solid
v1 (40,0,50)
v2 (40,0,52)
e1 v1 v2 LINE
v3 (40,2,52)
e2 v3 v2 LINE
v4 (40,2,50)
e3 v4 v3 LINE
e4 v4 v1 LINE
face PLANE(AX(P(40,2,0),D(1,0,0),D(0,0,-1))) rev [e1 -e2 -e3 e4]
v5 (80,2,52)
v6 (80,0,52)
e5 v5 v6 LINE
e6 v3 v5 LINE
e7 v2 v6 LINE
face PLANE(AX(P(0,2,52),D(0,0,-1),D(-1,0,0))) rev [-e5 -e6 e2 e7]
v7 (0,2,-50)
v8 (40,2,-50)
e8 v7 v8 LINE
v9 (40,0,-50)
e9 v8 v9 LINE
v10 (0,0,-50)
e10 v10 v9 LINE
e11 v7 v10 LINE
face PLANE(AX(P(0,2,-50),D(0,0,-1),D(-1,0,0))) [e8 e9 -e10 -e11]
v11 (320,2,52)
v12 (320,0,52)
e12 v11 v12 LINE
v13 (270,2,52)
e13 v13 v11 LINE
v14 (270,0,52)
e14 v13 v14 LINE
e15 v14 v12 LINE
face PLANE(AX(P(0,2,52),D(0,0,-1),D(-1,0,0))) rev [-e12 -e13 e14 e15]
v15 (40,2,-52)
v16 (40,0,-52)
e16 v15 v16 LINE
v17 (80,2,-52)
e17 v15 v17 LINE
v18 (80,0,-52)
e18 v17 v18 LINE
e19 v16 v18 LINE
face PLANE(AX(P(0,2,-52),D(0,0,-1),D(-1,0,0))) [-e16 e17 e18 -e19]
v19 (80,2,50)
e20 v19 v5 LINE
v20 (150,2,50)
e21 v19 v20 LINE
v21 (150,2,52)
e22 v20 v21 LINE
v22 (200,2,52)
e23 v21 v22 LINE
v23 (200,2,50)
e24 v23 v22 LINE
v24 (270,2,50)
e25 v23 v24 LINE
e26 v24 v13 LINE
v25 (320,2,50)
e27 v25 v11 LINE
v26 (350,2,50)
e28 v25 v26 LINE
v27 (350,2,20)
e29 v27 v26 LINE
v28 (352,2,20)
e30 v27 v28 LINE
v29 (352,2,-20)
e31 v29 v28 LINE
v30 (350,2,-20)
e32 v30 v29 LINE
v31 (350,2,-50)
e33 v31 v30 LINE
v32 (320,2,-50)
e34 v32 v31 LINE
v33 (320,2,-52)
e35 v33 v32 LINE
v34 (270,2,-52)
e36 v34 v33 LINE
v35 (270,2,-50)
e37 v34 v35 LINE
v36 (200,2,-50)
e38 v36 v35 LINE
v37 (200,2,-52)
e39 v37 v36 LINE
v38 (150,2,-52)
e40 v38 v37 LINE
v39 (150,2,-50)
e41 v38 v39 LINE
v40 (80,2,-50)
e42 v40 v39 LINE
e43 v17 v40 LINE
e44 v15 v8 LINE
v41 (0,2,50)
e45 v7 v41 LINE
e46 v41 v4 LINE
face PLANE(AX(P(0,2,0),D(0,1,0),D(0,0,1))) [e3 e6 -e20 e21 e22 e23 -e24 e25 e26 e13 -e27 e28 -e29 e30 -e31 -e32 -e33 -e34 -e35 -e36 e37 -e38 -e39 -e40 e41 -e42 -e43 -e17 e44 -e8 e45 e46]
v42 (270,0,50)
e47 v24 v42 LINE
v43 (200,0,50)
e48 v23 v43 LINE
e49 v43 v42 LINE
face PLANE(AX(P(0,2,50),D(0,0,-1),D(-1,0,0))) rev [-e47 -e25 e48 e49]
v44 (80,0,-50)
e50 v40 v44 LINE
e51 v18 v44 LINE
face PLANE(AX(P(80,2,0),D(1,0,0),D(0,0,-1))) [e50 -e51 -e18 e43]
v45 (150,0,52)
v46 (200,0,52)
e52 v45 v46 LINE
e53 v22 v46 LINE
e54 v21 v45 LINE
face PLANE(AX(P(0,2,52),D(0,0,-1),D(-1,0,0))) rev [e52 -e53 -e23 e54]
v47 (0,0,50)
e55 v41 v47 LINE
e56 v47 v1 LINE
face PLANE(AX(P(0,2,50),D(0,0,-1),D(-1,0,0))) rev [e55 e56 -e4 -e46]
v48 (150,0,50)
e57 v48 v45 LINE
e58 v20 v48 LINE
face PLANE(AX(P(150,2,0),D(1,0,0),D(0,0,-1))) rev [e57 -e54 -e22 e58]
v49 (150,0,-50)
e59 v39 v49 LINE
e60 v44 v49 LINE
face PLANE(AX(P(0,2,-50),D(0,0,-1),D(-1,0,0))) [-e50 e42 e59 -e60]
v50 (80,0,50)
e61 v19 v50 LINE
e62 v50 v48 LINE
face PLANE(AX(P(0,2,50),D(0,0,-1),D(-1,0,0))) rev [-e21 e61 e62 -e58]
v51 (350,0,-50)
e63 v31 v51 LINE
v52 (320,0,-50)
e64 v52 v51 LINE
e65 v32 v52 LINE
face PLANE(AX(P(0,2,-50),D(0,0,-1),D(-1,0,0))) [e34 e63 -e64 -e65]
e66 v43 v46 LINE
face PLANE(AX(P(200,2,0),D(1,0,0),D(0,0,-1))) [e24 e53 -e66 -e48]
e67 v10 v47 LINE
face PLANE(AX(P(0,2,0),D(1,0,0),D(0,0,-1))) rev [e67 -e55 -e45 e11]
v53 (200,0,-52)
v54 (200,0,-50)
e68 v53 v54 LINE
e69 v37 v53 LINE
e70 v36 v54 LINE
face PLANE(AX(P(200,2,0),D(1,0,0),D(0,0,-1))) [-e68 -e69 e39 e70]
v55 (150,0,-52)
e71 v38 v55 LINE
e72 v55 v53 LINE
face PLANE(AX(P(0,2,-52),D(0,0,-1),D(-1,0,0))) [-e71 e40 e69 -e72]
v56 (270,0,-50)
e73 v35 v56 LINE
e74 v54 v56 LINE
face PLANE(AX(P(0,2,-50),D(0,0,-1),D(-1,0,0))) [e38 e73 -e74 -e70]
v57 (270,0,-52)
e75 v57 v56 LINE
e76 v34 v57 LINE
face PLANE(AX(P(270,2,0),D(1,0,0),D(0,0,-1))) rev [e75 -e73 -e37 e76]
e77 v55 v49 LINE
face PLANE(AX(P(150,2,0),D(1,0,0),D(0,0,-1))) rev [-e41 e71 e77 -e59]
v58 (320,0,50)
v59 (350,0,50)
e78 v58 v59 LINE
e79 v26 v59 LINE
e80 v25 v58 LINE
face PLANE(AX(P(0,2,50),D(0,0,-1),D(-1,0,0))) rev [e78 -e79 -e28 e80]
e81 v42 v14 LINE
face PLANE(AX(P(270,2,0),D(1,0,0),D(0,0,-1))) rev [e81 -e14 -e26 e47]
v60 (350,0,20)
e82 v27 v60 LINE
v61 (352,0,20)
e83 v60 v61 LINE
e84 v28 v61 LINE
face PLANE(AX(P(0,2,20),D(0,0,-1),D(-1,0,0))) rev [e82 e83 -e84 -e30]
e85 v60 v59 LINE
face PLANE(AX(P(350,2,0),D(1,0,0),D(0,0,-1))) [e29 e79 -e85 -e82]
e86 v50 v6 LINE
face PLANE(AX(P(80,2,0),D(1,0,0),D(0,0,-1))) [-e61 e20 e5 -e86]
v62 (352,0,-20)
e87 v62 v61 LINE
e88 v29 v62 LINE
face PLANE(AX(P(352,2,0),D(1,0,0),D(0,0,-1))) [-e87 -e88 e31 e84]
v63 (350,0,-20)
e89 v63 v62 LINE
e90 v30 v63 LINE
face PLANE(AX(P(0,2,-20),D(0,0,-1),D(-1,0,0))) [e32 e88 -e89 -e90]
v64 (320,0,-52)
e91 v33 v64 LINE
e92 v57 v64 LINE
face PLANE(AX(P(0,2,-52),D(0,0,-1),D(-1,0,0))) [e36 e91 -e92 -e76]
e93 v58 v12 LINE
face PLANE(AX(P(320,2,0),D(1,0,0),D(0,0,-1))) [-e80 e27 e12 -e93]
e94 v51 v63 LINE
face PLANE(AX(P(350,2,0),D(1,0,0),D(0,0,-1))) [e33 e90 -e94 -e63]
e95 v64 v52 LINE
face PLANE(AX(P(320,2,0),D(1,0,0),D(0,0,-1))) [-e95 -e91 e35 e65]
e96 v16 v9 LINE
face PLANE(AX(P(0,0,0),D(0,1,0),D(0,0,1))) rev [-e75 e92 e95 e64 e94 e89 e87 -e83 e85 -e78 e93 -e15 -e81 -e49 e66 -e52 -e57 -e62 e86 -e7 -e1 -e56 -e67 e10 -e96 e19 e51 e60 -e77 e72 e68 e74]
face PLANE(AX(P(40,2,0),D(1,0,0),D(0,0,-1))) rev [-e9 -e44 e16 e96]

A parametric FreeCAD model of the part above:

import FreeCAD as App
import Part
import Sketcher

doc = App.newDocument("Part")
body = doc.addObject("PartDesign::Body", "Body")

sketch1 = doc.addObject("Sketcher::SketchObject", "Sketch")
body.addObject(sketch1)
sketch1.AttachmentSupport = (doc.XZ_Plane, [""])
sketch1.MapMode = "FlatFace"
sketch1.addGeometry([
    Part.LineSegment(App.Vector(40, -52, 0), App.Vector(40, -50, 0)),
    Part.LineSegment(App.Vector(40, -50, 0), App.Vector(0, -50, 0)),
    Part.LineSegment(App.Vector(0, -50, 0), App.Vector(0, 50, 0)),
    Part.LineSegment(App.Vector(0, 50, 0), App.Vector(40, 50, 0)),
    Part.LineSegment(App.Vector(40, 50, 0), App.Vector(40, 52, 0)),
    Part.LineSegment(App.Vector(40, 52, 0), App.Vector(80, 52, 0)),
    Part.LineSegment(App.Vector(80, 52, 0), App.Vector(80, 50, 0)),
    Part.LineSegment(App.Vector(80, 50, 0), App.Vector(150, 50, 0)),
    Part.LineSegment(App.Vector(150, 50, 0), App.Vector(150, 52, 0)),
    Part.LineSegment(App.Vector(150, 52, 0), App.Vector(200, 52, 0)),
    Part.LineSegment(App.Vector(200, 52, 0), App.Vector(200, 50, 0)),
    Part.LineSegment(App.Vector(200, 50, 0), App.Vector(270, 50, 0)),
    Part.LineSegment(App.Vector(270, 50, 0), App.Vector(270, 52, 0)),
    Part.LineSegment(App.Vector(270, 52, 0), App.Vector(320, 52, 0)),
    Part.LineSegment(App.Vector(320, 52, 0), App.Vector(320, 50, 0)),
    Part.LineSegment(App.Vector(320, 50, 0), App.Vector(350, 50, 0)),
    Part.LineSegment(App.Vector(350, 50, 0), App.Vector(350, -50, 0)),
    Part.LineSegment(App.Vector(350, -50, 0), App.Vector(320, -50, 0)),
    Part.LineSegment(App.Vector(320, -50, 0), App.Vector(320, -52, 0)),
    Part.LineSegment(App.Vector(320, -52, 0), App.Vector(270, -52, 0)),
    Part.LineSegment(App.Vector(270, -52, 0), App.Vector(270, -50, 0)),
    Part.LineSegment(App.Vector(270, -50, 0), App.Vector(200, -50, 0)),
    Part.LineSegment(App.Vector(200, -50, 0), App.Vector(200, -52, 0)),
    Part.LineSegment(App.Vector(200, -52, 0), App.Vector(150, -52, 0)),
    Part.LineSegment(App.Vector(150, -52, 0), App.Vector(150, -50, 0)),
    Part.LineSegment(App.Vector(150, -50, 0), App.Vector(80, -50, 0)),
    Part.LineSegment(App.Vector(80, -50, 0), App.Vector(80, -52, 0)),
    Part.LineSegment(App.Vector(80, -52, 0), App.Vector(40, -52, 0)),
], False)
sketch1.addConstraint([
    Sketcher.Constraint("Coincident", 0, 2, 1, 1),
    Sketcher.Constraint("Coincident", 1, 2, 2, 1),
    Sketcher.Constraint("Coincident", 2, 2, 3, 1),
    Sketcher.Constraint("Coincident", 3, 2, 4, 1),
    Sketcher.Constraint("Coincident", 4, 2, 5, 1),
    Sketcher.Constraint("Coincident", 5, 2, 6, 1),
    Sketcher.Constraint("Coincident", 6, 2, 7, 1),
    Sketcher.Constraint("Coincident", 7, 2, 8, 1),
    Sketcher.Constraint("Coincident", 8, 2, 9, 1),
    Sketcher.Constraint("Coincident", 9, 2, 10, 1),
    Sketcher.Constraint("Coincident", 10, 2, 11, 1),
    Sketcher.Constraint("Coincident", 11, 2, 12, 1),
    Sketcher.Constraint("Coincident", 12, 2, 13, 1),
    Sketcher.Constraint("Coincident", 13, 2, 14, 1),
    Sketcher.Constraint("Coincident", 14, 2, 15, 1),
    Sketcher.Constraint("Coincident", 15, 2, 16, 1),
    Sketcher.Constraint("Coincident", 16, 2, 17, 1),
    Sketcher.Constraint("Coincident", 17, 2, 18, 1),
    Sketcher.Constraint("Coincident", 18, 2, 19, 1),
    Sketcher.Constraint("Coincident", 19, 2, 20, 1),
    Sketcher.Constraint("Coincident", 20, 2, 21, 1),
    Sketcher.Constraint("Coincident", 21, 2, 22, 1),
    Sketcher.Constraint("Coincident", 22, 2, 23, 1),
    Sketcher.Constraint("Coincident", 23, 2, 24, 1),
    Sketcher.Constraint("Coincident", 24, 2, 25, 1),
    Sketcher.Constraint("Coincident", 25, 2, 26, 1),
    Sketcher.Constraint("Coincident", 26, 2, 27, 1),
    Sketcher.Constraint("Coincident", 27, 2, 0, 1),
    Sketcher.Constraint("Vertical", 0),
    Sketcher.Constraint("Horizontal", 1),
    Sketcher.Constraint("Vertical", 2),
    Sketcher.Constraint("Horizontal", 3),
    Sketcher.Constraint("Vertical", 4),
    Sketcher.Constraint("Horizontal", 5),
    Sketcher.Constraint("Vertical", 6),
    Sketcher.Constraint("Horizontal", 7),
    Sketcher.Constraint("Vertical", 8),
    Sketcher.Constraint("Horizontal", 9),
    Sketcher.Constraint("Vertical", 10),
    Sketcher.Constraint("Horizontal", 11),
    Sketcher.Constraint("Vertical", 12),
    Sketcher.Constraint("Horizontal", 13),
    Sketcher.Constraint("Vertical", 14),
    Sketcher.Constraint("Horizontal", 15),
    Sketcher.Constraint("Vertical", 16),
    Sketcher.Constraint("Horizontal", 17),
    Sketcher.Constraint("Vertical", 18),
    Sketcher.Constraint("Horizontal", 19),
    Sketcher.Constraint("Vertical", 20),
    Sketcher.Constraint("Horizontal", 21),
    Sketcher.Constraint("Vertical", 22),
    Sketcher.Constraint("Horizontal", 23),
    Sketcher.Constraint("Vertical", 24),
    Sketcher.Constraint("Horizontal", 25),
    Sketcher.Constraint("Vertical", 26),
    Sketcher.Constraint("Horizontal", 27),
    Sketcher.Constraint("Symmetric", 1, 2, 2, 2, -1, 1),
    Sketcher.Constraint("Symmetric", 14, 2, 17, 2, -1),
    Sketcher.Constraint("Symmetric", 12, 2, 19, 2, -1),
    Sketcher.Constraint("Symmetric", 10, 2, 21, 2, -1),
    Sketcher.Constraint("Symmetric", 8, 2, 23, 2, -1),
    Sketcher.Constraint("Symmetric", 6, 2, 25, 2, -1),
    Sketcher.Constraint("Symmetric", 4, 2, 27, 2, -1),
    Sketcher.Constraint("Horizontal", 3, 2, 6, 2),
    Sketcher.Constraint("Horizontal", 5, 2, 8, 2),
    Sketcher.Constraint("Horizontal", 7, 2, 10, 2),
    Sketcher.Constraint("Horizontal", 9, 2, 12, 2),
    Sketcher.Constraint("Horizontal", 11, 2, 14, 2),
    Sketcher.Constraint("Equal", 3, 5),
    Sketcher.Constraint("Equal", 7, 11),
    Sketcher.Constraint("Equal", 9, 13),
    Sketcher.Constraint("DistanceX", 1, 2, 1, 1, 40.0),
    Sketcher.Constraint("DistanceX", 7, 1, 7, 2, 70.0),
    Sketcher.Constraint("DistanceX", 9, 1, 9, 2, 50.0),
    Sketcher.Constraint("DistanceX", 15, 1, 15, 2, 30.0),
    Sketcher.Constraint("DistanceY", 0, 1, 0, 2, 2.0),
    Sketcher.Constraint("DistanceY", 2, 1, 2, 2, 100.0),
])
pad1 = doc.addObject("PartDesign::Pad", "Pad")
body.addObject(pad1)
pad1.Profile = sketch1
pad1.Length = 2
pad1.Reversed = True

sketch2 = doc.addObject("Sketcher::SketchObject", "Sketch001")
body.addObject(sketch2)
sketch2.AttachmentSupport = (doc.XZ_Plane, [""])
sketch2.MapMode = "FlatFace"
sketch2.addGeometry([
    Part.LineSegment(App.Vector(350, -20, 0), App.Vector(350, 20, 0)),
    Part.LineSegment(App.Vector(350, 20, 0), App.Vector(352, 20, 0)),
    Part.LineSegment(App.Vector(352, 20, 0), App.Vector(352, -20, 0)),
    Part.LineSegment(App.Vector(352, -20, 0), App.Vector(350, -20, 0)),
], False)
sketch2.addConstraint([
    Sketcher.Constraint("Coincident", 0, 2, 1, 1),
    Sketcher.Constraint("Coincident", 1, 2, 2, 1),
    Sketcher.Constraint("Coincident", 2, 2, 3, 1),
    Sketcher.Constraint("Coincident", 3, 2, 0, 1),
    Sketcher.Constraint("Vertical", 0),
    Sketcher.Constraint("Horizontal", 1),
    Sketcher.Constraint("Vertical", 2),
    Sketcher.Constraint("Horizontal", 3),
    Sketcher.Constraint("DistanceX", 1, 1, 1, 2, 2.0),
    Sketcher.Constraint("DistanceY", 0, 1, 0, 2, 40.0),
    Sketcher.Constraint("DistanceX", -1, 1, 0, 2, 350.0),
    Sketcher.Constraint("DistanceY", -1, 1, 0, 2, 20.0),
])
pad2 = doc.addObject("PartDesign::Pad", "Pad001")
body.addObject(pad2)
pad2.Profile = sketch2
pad2.Length = 2
pad2.Reversed = True

doc.recompute()
